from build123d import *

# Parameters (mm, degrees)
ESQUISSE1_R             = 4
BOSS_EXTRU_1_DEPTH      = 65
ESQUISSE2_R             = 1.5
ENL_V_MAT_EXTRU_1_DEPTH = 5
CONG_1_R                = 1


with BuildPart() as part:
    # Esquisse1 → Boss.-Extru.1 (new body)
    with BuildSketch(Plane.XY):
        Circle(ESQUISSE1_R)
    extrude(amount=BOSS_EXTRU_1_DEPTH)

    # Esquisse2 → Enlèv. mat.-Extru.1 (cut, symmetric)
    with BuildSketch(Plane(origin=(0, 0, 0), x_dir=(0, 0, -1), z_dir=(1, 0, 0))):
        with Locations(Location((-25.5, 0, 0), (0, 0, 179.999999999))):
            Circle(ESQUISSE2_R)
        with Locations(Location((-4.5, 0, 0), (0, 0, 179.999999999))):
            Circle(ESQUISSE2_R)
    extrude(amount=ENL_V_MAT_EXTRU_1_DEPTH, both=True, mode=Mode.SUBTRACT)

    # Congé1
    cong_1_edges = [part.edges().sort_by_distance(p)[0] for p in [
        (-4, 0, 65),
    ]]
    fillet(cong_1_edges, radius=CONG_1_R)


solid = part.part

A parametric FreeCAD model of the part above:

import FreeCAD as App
import Part
import Sketcher


def edges_at(feature, points):
    """Names of the edges that pass closest to the given points."""
    edges = feature.Shape.Edges
    near = lambda p: min(range(len(edges)), key=lambda i: edges[i].distToShape(Part.Vertex(*p))[0])
    return sorted({f"Edge{near(p) + 1}" for p in points})

doc = App.newDocument("Part")
body = doc.addObject("PartDesign::Body", "Body")

# Sketch on XY plane
sketch1 = body.newObject("Sketcher::SketchObject", "Sketch")
sketch1.AttachmentSupport = (doc.getObject("XY_Plane"), [""])
sketch1.MapMode = "FlatFace"
sketch1.addGeometry(Part.Circle(App.Vector(0, 0, 0), App.Vector(0, 0, 1), 4), False)
sketch1.addConstraint([
    Sketcher.Constraint("Coincident", 0, 3, -1, 1),
    Sketcher.Constraint("Diameter", 0, 8.0),
])
pad1 = body.newObject("PartDesign::Pad", "Pad")
pad1.Profile = sketch1
pad1.Length = 65

# Sketch on YZ plane
sketch2 = body.newObject("Sketcher::SketchObject", "Sketch001")
sketch2.AttachmentSupport = (doc.getObject("YZ_Plane"), [""])
sketch2.MapMode = "FlatFace"
sketch2.addGeometry([
    Part.Circle(App.Vector(0, 25.5, 0), App.Vector(0, 0, 1), 1.5),
    Part.Circle(App.Vector(0, 4.5, 0), App.Vector(0, 0, 1), 1.5),
], False)
sketch2.addConstraint([
    Sketcher.Constraint("Equal", 0, 1),
    Sketcher.Constraint("PointOnObject", 0, 3, -2),
    Sketcher.Constraint("PointOnObject", 1, 3, -2),
    Sketcher.Constraint("Diameter", 0, 3.0),
    Sketcher.Constraint("DistanceY", 1, 3, 0, 3, 21.0),
    Sketcher.Constraint("DistanceY", -1, 1, 0, 3, 25.5),
])
pocket1 = body.newObject("PartDesign::Pocket", "Pocket")
pocket1.Profile = sketch2
pocket1.Length = 10
pocket1.Midplane = True
doc.recompute()

fillet = body.newObject("PartDesign::Fillet", "Fillet")
fillet.Base = (pocket1, edges_at(pocket1, [(-4, 0, 65)]))
fillet.Radius = 1

doc.recompute()
